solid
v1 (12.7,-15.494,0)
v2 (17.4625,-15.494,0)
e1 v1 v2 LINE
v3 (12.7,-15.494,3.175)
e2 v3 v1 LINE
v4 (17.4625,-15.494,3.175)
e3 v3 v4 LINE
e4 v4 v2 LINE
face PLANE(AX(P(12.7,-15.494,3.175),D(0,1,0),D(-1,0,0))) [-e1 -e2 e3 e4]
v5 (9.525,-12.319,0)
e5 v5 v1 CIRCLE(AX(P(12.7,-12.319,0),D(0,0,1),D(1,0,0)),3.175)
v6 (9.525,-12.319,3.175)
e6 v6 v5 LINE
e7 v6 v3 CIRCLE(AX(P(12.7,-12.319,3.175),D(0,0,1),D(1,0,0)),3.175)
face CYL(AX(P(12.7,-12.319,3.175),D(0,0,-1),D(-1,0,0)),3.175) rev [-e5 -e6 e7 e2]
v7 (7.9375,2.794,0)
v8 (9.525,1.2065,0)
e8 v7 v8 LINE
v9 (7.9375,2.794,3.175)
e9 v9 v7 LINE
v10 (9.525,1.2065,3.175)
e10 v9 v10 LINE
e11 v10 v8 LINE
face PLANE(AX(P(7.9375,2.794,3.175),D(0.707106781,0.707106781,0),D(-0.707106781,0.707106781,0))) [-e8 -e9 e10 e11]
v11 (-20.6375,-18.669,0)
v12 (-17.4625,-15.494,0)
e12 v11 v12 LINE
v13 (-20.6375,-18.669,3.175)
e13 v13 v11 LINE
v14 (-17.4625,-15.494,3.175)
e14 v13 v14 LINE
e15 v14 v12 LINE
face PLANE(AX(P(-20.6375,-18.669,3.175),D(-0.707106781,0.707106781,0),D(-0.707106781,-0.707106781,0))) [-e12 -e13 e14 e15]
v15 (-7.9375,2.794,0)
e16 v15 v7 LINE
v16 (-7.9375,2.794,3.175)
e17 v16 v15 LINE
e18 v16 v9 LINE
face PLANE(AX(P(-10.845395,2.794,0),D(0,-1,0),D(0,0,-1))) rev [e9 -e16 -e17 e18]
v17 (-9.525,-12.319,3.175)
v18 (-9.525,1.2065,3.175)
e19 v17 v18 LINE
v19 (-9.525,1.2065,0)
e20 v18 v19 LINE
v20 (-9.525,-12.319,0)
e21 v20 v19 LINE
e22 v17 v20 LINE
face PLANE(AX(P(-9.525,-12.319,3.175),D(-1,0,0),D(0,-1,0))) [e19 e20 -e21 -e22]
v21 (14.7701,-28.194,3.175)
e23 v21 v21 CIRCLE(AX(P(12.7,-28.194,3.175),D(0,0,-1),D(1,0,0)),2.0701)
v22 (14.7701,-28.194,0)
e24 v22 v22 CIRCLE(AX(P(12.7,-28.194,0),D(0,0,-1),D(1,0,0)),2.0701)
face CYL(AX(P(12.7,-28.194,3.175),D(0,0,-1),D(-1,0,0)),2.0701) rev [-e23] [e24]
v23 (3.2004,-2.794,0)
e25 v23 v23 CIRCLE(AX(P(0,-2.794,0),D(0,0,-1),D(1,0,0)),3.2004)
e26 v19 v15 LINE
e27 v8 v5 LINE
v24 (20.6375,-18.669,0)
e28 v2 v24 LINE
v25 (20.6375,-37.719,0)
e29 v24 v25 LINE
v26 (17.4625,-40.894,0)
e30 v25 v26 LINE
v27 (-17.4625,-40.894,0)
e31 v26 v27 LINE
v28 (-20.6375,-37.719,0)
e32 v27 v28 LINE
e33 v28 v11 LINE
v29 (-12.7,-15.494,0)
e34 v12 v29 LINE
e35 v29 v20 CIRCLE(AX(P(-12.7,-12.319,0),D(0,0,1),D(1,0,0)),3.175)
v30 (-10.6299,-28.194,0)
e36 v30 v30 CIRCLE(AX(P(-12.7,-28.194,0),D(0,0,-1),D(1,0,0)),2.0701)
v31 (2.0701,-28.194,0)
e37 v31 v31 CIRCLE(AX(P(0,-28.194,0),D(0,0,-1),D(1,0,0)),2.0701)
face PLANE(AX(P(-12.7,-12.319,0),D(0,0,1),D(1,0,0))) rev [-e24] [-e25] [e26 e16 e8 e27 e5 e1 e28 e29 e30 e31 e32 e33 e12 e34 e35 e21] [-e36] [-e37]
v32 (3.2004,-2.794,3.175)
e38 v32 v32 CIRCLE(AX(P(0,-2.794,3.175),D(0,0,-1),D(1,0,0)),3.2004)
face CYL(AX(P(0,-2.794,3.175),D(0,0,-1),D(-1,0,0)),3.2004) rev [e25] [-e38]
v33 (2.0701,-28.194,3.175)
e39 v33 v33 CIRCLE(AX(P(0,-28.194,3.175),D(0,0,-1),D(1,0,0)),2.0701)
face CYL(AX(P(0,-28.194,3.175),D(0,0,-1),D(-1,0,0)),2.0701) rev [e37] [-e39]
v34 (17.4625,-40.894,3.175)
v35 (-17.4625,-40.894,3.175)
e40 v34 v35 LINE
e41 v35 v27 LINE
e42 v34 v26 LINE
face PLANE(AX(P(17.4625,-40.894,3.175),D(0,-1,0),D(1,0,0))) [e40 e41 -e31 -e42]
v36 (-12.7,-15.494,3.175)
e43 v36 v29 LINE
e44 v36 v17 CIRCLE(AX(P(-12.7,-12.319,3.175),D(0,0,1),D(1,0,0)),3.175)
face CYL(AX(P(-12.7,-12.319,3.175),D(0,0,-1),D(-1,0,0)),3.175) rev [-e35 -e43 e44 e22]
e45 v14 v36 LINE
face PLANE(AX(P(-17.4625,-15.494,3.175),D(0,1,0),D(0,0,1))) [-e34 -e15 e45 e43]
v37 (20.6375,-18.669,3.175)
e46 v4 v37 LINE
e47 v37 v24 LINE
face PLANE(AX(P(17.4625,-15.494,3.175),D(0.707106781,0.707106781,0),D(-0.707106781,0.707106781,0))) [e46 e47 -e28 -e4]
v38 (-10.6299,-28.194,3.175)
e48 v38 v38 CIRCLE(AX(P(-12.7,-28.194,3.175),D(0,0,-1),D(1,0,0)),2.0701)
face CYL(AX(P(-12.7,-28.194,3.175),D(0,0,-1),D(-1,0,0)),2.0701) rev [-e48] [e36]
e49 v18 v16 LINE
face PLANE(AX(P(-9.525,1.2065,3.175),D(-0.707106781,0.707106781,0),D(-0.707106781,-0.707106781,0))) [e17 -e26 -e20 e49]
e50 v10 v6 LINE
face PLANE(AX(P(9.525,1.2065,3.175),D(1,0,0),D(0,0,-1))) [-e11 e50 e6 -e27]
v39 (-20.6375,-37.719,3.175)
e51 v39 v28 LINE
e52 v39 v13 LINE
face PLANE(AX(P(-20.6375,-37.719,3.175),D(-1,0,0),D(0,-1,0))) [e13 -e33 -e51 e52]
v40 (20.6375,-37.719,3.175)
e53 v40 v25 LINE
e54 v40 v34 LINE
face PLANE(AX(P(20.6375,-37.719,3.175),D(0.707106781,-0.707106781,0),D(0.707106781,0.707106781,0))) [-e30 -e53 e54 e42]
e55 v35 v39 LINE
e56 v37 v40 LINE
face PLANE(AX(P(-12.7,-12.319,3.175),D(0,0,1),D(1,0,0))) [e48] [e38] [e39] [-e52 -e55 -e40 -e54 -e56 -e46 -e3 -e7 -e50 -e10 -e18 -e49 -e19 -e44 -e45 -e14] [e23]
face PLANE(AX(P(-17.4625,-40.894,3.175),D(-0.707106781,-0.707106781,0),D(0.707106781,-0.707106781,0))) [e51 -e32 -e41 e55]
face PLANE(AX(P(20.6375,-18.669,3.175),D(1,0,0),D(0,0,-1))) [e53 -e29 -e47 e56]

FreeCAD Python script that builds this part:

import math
import FreeCAD as App
import Part
import Sketcher
Q = App.Units.Quantity


def add_polygon(sketch, points):
    """Adds a closed chain of lines whose ends are joined by coincident constraints."""
    first, n = sketch.GeometryCount, len(points)
    for a, b in zip(points, points[1:] + points[:1]):
        sketch.addGeometry(Part.LineSegment(App.Vector(*a, 0), App.Vector(*b, 0)), False)
    for i in range(n):
        sketch.addConstraint(Sketcher.Constraint("Coincident", first + i, 2, first + (i + 1) % n, 1))

doc = App.newDocument("Part")
params = doc.addObject("Spreadsheet::Sheet", "Params")
for row, (alias, value) in enumerate([
    ("sketch1_diameter", "0.163 in"),
    ("sketch1_diameter2", "0.252 in"),
    ("sketch1_width", "0.5 in"),
    ("sketch1_radius", "0.125 in"),
    ("sketch1_width2", "1.375 in"),
    ("pad1_length", "0.125 in"),
], start=1):
    params.set(f"A{row}", alias)
    params.set(f"B{row}", "=" + value)
    params.setAlias(f"B{row}", alias)

body = doc.addObject("PartDesign::Body", "Body")

sketch1 = body.newObject("Sketcher::SketchObject", "Sketch")
sketch1.AttachmentSupport = (doc.getObject("XY_Plane"), [""])
sketch1.MapMode = "FlatFace"
sketch1.addGeometry(Part.LineSegment(App.Vector(17.5, -15.5, 0), App.Vector(20.6, -18.7, 0)), False)
sketch1.addGeometry(Part.LineSegment(App.Vector(20.6, -18.7, 0), App.Vector(20.6, -37.7, 0)), False)
sketch1.addGeometry(Part.LineSegment(App.Vector(20.6, -37.7, 0), App.Vector(17.5, -40.9, 0)), False)
sketch1.addGeometry(Part.LineSegment(App.Vector(17.5, -40.9, 0), App.Vector(-17.5, -40.9, 0)), False)
sketch1.addGeometry(Part.LineSegment(App.Vector(-17.5, -40.9, 0), App.Vector(-20.6, -37.7, 0)), False)
sketch1.addGeometry(Part.LineSegment(App.Vector(-20.6, -37.7, 0), App.Vector(-20.6, -18.7, 0)), False)
sketch1.addGeometry(Part.LineSegment(App.Vector(-20.6, -18.7, 0), App.Vector(-17.5, -15.5, 0)), False)
sketch1.addGeometry(Part.LineSegment(App.Vector(-17.5, -15.5, 0), App.Vector(-12.7, -15.5, 0)), False)
sketch1.addGeometry(Part.ArcOfCircle(Part.Circle(App.Vector(-12.7, -12.3, 0), App.Vector(0, 0, 1), 3.2), math.radians(-90), math.radians(0)), False)
sketch1.addGeometry(Part.LineSegment(App.Vector(-9.5, -12.3, 0), App.Vector(-9.5, 1.2, 0)), False)
sketch1.addGeometry(Part.LineSegment(App.Vector(-9.5, 1.2, 0), App.Vector(-7.9, 2.8, 0)), False)
sketch1.addGeometry(Part.LineSegment(App.Vector(-7.9, 2.8, 0), App.Vector(-9.5, 4.4, 0)), False)
sketch1.addGeometry(Part.LineSegment(App.Vector(-9.5, 4.4, 0), App.Vector(-9.5, 37.7, 0)), False)
sketch1.addGeometry(Part.LineSegment(App.Vector(-9.5, 37.7, 0), App.Vector(-6.3, 40.9, 0)), False)
sketch1.addGeometry(Part.LineSegment(App.Vector(-6.3, 40.9, 0), App.Vector(6.3, 40.9, 0)), False)
sketch1.addGeometry(Part.LineSegment(App.Vector(6.3, 40.9, 0), App.Vector(9.5, 37.7, 0)), False)
sketch1.addGeometry(Part.LineSegment(App.Vector(9.5, 37.7, 0), App.Vector(9.5, 4.4, 0)), False)
sketch1.addGeometry(Part.LineSegment(App.Vector(9.5, 4.4, 0), App.Vector(7.9, 2.8, 0)), False)
sketch1.addGeometry(Part.LineSegment(App.Vector(7.9, 2.8, 0), App.Vector(9.5, 1.2, 0)), False)
sketch1.addGeometry(Part.LineSegment(App.Vector(9.5, 1.2, 0), App.Vector(9.5, -12.3, 0)), False)
sketch1.addGeometry(Part.ArcOfCircle(Part.Circle(App.Vector(12.7, -12.3, 0), App.Vector(0, 0, 1), 3.2), math.radians(-180), math.radians(-90)), False)
sketch1.addGeometry(Part.LineSegment(App.Vector(12.7, -15.5, 0), App.Vector(17.5, -15.5, 0)), False)
sketch1.addGeometry(Part.Circle(App.Vector(12.7, -28.2, 0), App.Vector(0, 0, 1), 2.1), False)
sketch1.addGeometry(Part.Circle(App.Vector(0, -28.2, 0), App.Vector(0, 0, 1), 2.1), False)
sketch1.addGeometry(Part.Circle(App.Vector(-12.7, -28.2, 0), App.Vector(0, 0, 1), 2.1), False)
sketch1.addGeometry(Part.Circle(App.Vector(0, -2.8, 0), App.Vector(0, 0, 1), 3.2), False)
sketch1.addGeometry(Part.Circle(App.Vector(0, 35.3, 0), App.Vector(0, 0, 1), 3.2), False)
sketch1.addConstraint(Sketcher.Constraint("Coincident", 0, 2, 1, 1))
sketch1.addConstraint(Sketcher.Constraint("Coincident", 1, 2, 2, 1))
sketch1.addConstraint(Sketcher.Constraint("Coincident", 2, 2, 3, 1))
sketch1.addConstraint(Sketcher.Constraint("Coincident", 3, 2, 4, 1))
sketch1.addConstraint(Sketcher.Constraint("Coincident", 4, 2, 5, 1))
sketch1.addConstraint(Sketcher.Constraint("Coincident", 5, 2, 6, 1))
sketch1.addConstraint(Sketcher.Constraint("Coincident", 6, 2, 7, 1))
sketch1.addConstraint(Sketcher.Constraint("Tangent", 7, 2, 8, 1))
sketch1.addConstraint(Sketcher.Constraint("Tangent", 8, 2, 9, 1))
sketch1.addConstraint(Sketcher.Constraint("Coincident", 9, 2, 10, 1))
sketch1.addConstraint(Sketcher.Constraint("Coincident", 10, 2, 11, 1))
sketch1.addConstraint(Sketcher.Constraint("Coincident", 11, 2, 12, 1))
sketch1.addConstraint(Sketcher.Constraint("Coincident", 12, 2, 13, 1))
sketch1.addConstraint(Sketcher.Constraint("Coincident", 13, 2, 14, 1))
sketch1.addConstraint(Sketcher.Constraint("Coincident", 14, 2, 15, 1))
sketch1.addConstraint(Sketcher.Constraint("Coincident", 15, 2, 16, 1))
sketch1.addConstraint(Sketcher.Constraint("Coincident", 16, 2, 17, 1))
sketch1.addConstraint(Sketcher.Constraint("Coincident", 17, 2, 18, 1))
sketch1.addConstraint(Sketcher.Constraint("Coincident", 18, 2, 19, 1))
sketch1.addConstraint(Sketcher.Constraint("Tangent", 19, 2, 20, 1))
sketch1.addConstraint(Sketcher.Constraint("Tangent", 20, 2, 21, 1))
sketch1.addConstraint(Sketcher.Constraint("Coincident", 21, 2, 0, 1))
sketch1.addConstraint(Sketcher.Constraint("Vertical", 1))
sketch1.addConstraint(Sketcher.Constraint("Horizontal", 3))
sketch1.addConstraint(Sketcher.Constraint("Vertical", 5))
sketch1.addConstraint(Sketcher.Constraint("Horizontal", 7))
sketch1.addConstraint(Sketcher.Constraint("Vertical", 9))
sketch1.addConstraint(Sketcher.Constraint("Vertical", 12))
sketch1.addConstraint(Sketcher.Constraint("Horizontal", 14))
sketch1.addConstraint(Sketcher.Constraint("Vertical", 16))
sketch1.addConstraint(Sketcher.Constraint("Vertical", 19))
sketch1.addConstraint(Sketcher.Constraint("Horizontal", 21))
sketch1.addConstraint(Sketcher.Constraint("Equal", 8, 20))
sketch1.addConstraint(Sketcher.Constraint("Equal", 22, 23))
sketch1.addConstraint(Sketcher.Constraint("Equal", 23, 24))
sketch1.addConstraint(Sketcher.Constraint("Equal", 25, 26))
sketch1.addConstraint(Sketcher.Constraint("Symmetric", 8, 3, 20, 3, -2))
sketch1.addConstraint(Sketcher.Constraint("Symmetric", 22, 3, 24, 3, -2))
sketch1.addConstraint(Sketcher.Constraint("Symmetric", 1, 2, 4, 2, -2))
sketch1.addConstraint(Sketcher.Constraint("Symmetric", 12, 2, 15, 2, -2))
sketch1.addConstraint(Sketcher.Constraint("Symmetric", 10, 2, 17, 2, -2))
sketch1.addConstraint(Sketcher.Constraint("PointOnObject", 23, 3, -2))
sketch1.addConstraint(Sketcher.Constraint("PointOnObject", 25, 3, -2))
sketch1.addConstraint(Sketcher.Constraint("PointOnObject", 26, 3, -2))
sketch1.addConstraint(Sketcher.Constraint("Perpendicular", 0, 2))
sketch1.addConstraint(Sketcher.Constraint("Perpendicular", 2, 4))
sketch1.addConstraint(Sketcher.Constraint("Perpendicular", 4, 6))
sketch1.addConstraint(Sketcher.Constraint("Parallel", 6, 10))
sketch1.addConstraint(Sketcher.Constraint("Perpendicular", 10, 11))
sketch1.addConstraint(Sketcher.Constraint("Perpendicular", 11, 13))
sketch1.addConstraint(Sketcher.Constraint("Perpendicular", 13, 15))
sketch1.addConstraint(Sketcher.Constraint("Perpendicular", 15, 17))
sketch1.addConstraint(Sketcher.Constraint("Perpendicular", 17, 18))
sketch1.addConstraint(Sketcher.Constraint("Horizontal", 22, 3, 23, 3))
sketch1.addConstraint(Sketcher.Constraint("Horizontal", 0, 2, 5, 2))
sketch1.addConstraint(Sketcher.Constraint("Horizontal", 11, 2, 16, 2))
sketch1.addConstraint(Sketcher.Constraint("Vertical", 20, 3, 22, 3))
sketch1.addConstraint(Sketcher.Constraint("Vertical", 3, 2, 6, 2))
sketch1.addConstraint(Sketcher.Constraint("Vertical", 9, 2, 11, 2))
sketch1.addConstraint(Sketcher.Constraint("Equal", 6, 13))
sketch1.addConstraint(Sketcher.Constraint("Diameter", 22, Q("0.163 in")))
sketch1.addConstraint(Sketcher.Constraint("Diameter", 25, Q("0.252 in")))
sketch1.addConstraint(Sketcher.Constraint("DistanceX", 14, 1, 14, 2, Q("0.5 in")))
sketch1.addConstraint(Sketcher.Constraint("Radius", 8, Q("0.125 in")))
sketch1.addConstraint(Sketcher.Constraint("DistanceX", 8, 3, 20, 3, Q("1 in")))
sketch1.addConstraint(Sketcher.Constraint("DistanceY", 23, 3, 25, 3, Q("1 in")))
sketch1.addConstraint(Sketcher.Constraint("DistanceY", 1, 2, 20, 3, Q("1 in")))
sketch1.addConstraint(Sketcher.Constraint("DistanceY", 25, 3, 26, 3, Q("1.5 in")))
sketch1.addConstraint(Sketcher.Constraint("DistanceY", 2, 2, 22, 3, Q("0.5 in")))
sketch1.addConstraint(Sketcher.Constraint("DistanceY", 10, 2, 13, 2, Q("1.5 in")))
sketch1.addConstraint(Sketcher.Constraint("DistanceX", 3, 2, 3, 1, Q("1.375 in")))
sketch1.addConstraint(Sketcher.Constraint("DistanceY", 12, 1, 12, 2, Q("1.3125 in")))
sketch1.addConstraint(Sketcher.Constraint("DistanceY", 22, 3, -1, 1, Q("1.11 in")))
sketch1.addConstraint(Sketcher.Constraint("DistanceY", -1, 1, 10, 2, Q("0.11 in")))
sketch1.setExpression("Constraints[60]", "Params.sketch1_diameter")
sketch1.setExpression("Constraints[61]", "Params.sketch1_diameter2")
sketch1.setExpression("Constraints[62]", "Params.sketch1_width")
sketch1.setExpression("Constraints[63]", "Params.sketch1_radius")
sketch1.setExpression("Constraints[70]", "Params.sketch1_width2")
pad1 = body.newObject("PartDesign::Pad", "Pad")
pad1.Profile = sketch1
pad1.setExpression("Length", "Params.pad1_length")

sketch2 = body.newObject("Sketcher::SketchObject", "Sketch001")
sketch2.AttachmentSupport = (doc.getObject("XY_Plane"), [""])
sketch2.MapMode = "FlatFace"
sketch2.AttachmentOffset = App.Placement(App.Vector(0, 0, 0.125 * 25.4), App.Rotation())
add_polygon(sketch2, [(-11, 48), (-11, 3), (22, 3), (22, 48)])
sketch2.addConstraint(Sketcher.Constraint("Vertical", 0))
sketch2.addConstraint(Sketcher.Constraint("Horizontal", 1))
sketch2.addConstraint(Sketcher.Constraint("Vertical", 2))
sketch2.addConstraint(Sketcher.Constraint("Horizontal", 3))
sketch2.addConstraint(Sketcher.Constraint("DistanceY", -1, 1, 0, 2, Q("0.11 in")))
sketch2.addConstraint(Sketcher.Constraint("DistanceX", -1, 1, 1, 2, Q("22.261599 mm")))
sketch2.addConstraint(Sketcher.Constraint("DistanceX", 1, 1, 1, 2, Q("33.106994 mm")))
sketch2.addConstraint(Sketcher.Constraint("DistanceY", 0, 2, 0, 1, Q("45.214146 mm")))
pocket1 = body.newObject("PartDesign::Pocket", "Pocket")
pocket1.Profile = sketch2
pocket1.Type = "ThroughAll"

doc.recompute()
